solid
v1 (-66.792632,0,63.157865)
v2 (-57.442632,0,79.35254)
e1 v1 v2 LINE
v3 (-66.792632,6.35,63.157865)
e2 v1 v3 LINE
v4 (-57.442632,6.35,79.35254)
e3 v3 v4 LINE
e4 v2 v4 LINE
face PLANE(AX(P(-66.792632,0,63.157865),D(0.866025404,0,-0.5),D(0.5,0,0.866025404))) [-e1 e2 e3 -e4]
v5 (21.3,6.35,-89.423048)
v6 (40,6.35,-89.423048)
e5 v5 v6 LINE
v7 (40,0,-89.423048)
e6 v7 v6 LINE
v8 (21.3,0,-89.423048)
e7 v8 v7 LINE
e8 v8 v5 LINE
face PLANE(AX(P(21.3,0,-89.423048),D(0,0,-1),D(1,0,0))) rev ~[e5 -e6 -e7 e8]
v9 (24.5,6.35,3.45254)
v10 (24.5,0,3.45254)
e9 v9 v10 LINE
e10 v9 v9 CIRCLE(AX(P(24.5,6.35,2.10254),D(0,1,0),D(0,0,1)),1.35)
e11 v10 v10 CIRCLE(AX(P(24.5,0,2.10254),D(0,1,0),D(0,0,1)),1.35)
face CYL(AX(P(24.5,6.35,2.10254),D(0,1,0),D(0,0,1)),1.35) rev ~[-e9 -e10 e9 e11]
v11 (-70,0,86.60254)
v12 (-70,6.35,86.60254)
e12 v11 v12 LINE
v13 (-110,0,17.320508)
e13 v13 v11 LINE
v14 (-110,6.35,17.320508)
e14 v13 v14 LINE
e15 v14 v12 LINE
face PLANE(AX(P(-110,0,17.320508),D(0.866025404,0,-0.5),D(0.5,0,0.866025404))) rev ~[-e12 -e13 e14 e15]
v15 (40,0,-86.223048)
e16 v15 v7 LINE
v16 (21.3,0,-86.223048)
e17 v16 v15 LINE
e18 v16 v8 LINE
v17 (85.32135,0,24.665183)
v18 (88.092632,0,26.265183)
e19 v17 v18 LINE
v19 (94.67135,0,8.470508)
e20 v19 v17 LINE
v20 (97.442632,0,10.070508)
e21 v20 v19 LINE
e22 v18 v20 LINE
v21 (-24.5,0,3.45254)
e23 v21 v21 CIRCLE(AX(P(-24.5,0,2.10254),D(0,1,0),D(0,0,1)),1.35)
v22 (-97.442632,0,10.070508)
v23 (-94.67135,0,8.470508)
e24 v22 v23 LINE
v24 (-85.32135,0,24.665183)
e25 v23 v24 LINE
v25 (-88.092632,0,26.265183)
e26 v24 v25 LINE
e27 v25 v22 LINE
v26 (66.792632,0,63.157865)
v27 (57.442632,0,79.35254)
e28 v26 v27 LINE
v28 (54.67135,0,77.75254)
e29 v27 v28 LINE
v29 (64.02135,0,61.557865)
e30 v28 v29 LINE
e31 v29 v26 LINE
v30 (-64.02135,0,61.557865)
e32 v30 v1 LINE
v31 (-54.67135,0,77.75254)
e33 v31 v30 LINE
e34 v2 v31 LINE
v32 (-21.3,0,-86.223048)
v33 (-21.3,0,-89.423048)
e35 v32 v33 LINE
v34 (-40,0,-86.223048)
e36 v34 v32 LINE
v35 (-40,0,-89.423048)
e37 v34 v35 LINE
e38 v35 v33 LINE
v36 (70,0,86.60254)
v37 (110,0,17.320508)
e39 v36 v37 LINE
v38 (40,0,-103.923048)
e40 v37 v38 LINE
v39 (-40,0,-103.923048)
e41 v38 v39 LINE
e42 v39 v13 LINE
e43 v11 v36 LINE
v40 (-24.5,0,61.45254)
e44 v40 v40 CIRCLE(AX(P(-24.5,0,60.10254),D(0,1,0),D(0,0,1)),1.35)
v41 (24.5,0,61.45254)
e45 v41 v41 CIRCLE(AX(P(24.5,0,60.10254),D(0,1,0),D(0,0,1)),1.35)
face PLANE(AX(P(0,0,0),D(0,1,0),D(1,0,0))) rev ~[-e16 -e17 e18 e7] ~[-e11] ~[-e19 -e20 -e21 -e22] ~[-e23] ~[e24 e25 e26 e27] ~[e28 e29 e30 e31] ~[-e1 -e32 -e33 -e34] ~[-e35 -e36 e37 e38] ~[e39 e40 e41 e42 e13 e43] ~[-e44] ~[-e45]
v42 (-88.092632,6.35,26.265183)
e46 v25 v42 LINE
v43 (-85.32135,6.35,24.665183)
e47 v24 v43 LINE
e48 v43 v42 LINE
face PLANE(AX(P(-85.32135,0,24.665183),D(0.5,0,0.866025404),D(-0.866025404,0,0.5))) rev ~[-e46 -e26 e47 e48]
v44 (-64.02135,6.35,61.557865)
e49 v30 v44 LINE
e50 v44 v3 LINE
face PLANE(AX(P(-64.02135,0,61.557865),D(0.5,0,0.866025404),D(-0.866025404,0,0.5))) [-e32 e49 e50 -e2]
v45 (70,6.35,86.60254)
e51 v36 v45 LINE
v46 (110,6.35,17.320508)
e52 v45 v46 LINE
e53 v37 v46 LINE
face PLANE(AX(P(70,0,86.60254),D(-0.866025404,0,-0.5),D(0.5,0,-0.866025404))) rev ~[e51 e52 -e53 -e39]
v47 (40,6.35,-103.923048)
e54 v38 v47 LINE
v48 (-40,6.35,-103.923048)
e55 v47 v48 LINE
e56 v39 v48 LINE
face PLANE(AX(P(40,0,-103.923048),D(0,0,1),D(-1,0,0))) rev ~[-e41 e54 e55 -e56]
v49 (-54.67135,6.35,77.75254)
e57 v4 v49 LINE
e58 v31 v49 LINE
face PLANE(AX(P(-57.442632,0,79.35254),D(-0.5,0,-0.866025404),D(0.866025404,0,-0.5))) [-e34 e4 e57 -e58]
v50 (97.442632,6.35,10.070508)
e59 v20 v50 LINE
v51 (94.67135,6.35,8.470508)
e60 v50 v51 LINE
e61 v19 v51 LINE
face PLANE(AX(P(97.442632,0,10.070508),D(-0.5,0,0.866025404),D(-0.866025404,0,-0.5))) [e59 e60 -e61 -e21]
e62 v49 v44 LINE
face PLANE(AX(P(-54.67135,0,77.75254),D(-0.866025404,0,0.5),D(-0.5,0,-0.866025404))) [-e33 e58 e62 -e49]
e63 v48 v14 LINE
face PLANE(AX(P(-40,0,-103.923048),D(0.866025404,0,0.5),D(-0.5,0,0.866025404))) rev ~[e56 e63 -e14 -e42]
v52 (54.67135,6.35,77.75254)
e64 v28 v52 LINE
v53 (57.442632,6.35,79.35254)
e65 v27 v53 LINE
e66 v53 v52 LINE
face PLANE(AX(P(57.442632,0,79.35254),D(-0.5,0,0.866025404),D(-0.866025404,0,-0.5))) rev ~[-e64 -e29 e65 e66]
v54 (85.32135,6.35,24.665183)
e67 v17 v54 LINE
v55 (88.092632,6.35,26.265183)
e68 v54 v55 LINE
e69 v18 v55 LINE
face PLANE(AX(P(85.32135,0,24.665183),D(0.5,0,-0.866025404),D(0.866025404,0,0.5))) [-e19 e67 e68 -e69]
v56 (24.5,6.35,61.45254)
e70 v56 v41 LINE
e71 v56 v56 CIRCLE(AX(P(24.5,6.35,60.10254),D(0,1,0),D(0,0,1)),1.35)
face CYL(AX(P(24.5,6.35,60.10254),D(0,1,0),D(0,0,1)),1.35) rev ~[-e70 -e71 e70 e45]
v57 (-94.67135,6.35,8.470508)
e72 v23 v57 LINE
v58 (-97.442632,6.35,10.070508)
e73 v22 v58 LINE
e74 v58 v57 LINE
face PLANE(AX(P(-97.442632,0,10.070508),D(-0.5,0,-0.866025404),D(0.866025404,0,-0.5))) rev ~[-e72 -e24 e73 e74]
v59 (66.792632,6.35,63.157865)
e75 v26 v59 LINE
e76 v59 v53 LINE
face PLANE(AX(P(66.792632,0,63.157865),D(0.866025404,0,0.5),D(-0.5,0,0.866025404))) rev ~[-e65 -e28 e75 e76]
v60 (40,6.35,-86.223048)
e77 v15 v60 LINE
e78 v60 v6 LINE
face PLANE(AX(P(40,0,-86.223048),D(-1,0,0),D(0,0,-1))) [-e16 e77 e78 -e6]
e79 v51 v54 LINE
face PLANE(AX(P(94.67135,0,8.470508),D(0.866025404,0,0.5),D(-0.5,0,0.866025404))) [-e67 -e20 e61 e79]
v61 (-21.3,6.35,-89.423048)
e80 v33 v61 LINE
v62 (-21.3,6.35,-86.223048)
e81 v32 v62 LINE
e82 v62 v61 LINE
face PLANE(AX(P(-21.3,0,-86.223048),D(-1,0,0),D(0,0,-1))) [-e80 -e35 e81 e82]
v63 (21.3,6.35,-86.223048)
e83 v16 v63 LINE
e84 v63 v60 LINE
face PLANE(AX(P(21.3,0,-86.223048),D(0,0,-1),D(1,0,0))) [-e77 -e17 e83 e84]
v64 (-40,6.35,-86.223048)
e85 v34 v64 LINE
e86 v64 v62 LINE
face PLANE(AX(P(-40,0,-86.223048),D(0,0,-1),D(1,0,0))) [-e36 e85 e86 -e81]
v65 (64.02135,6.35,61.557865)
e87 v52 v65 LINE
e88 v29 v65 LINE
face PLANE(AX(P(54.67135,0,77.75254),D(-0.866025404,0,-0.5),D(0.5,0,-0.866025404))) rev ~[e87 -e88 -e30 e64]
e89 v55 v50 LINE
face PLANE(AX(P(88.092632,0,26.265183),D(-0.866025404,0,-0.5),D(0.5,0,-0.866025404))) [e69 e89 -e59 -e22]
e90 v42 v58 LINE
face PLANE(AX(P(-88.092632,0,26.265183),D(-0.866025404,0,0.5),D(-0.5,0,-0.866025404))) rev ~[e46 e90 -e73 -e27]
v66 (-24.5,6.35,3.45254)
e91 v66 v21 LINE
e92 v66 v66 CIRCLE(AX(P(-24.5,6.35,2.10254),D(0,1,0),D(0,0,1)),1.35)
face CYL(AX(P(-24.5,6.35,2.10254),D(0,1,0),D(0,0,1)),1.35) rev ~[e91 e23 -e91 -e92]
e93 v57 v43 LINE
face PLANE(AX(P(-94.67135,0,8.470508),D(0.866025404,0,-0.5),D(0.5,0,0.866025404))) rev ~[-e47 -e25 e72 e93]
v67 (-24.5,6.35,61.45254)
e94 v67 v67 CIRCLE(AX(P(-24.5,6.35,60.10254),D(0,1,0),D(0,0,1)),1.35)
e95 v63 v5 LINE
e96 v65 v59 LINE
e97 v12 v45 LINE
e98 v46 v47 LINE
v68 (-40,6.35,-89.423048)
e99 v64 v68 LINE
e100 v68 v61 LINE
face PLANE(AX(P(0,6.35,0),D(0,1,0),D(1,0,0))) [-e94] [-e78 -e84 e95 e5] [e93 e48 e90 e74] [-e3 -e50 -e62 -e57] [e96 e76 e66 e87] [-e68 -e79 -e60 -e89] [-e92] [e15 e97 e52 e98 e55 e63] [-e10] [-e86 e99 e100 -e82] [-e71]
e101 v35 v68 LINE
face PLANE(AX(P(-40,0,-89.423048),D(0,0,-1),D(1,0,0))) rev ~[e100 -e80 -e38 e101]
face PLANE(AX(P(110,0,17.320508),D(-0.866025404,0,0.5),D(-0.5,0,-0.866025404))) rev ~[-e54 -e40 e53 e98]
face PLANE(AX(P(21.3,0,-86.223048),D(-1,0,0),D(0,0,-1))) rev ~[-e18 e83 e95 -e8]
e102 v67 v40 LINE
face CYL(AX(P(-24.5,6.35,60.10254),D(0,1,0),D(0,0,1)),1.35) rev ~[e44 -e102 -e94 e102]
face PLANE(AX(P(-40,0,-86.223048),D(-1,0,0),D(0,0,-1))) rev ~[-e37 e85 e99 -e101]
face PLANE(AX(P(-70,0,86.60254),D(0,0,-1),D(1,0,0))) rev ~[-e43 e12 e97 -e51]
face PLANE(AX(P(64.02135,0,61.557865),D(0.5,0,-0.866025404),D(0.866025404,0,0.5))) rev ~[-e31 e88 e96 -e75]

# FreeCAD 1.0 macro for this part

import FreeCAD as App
import Part
import Sketcher
from FreeCAD import Vector
Q = App.Units.Quantity


def add_polygon(sketch, points):
    """Adds a closed chain of lines whose ends are joined by coincident constraints."""
    first, n = sketch.GeometryCount, len(points)
    for a, b in zip(points, points[1:] + points[:1]):
        sketch.addGeometry(Part.LineSegment(App.Vector(*a, 0), App.Vector(*b, 0)), False)
    for i in range(n):
        sketch.addConstraint(Sketcher.Constraint("Coincident", first + i, 2, first + (i + 1) % n, 1))

doc = App.newDocument("Part")
body = doc.addObject("PartDesign::Body", "Body")

sketch1 = body.newObject("Sketcher::SketchObject", "Sketch")
sketch1.AttachmentSupport = (doc.getObject("XZ_Plane"), [""])
sketch1.MapMode = "FlatFace"
add_polygon(sketch1, [(70, 86.60254), (110, 17.320508), (40, -103.923048), (-40, -103.923048), (-110, 17.320508), (-70, 86.60254)])
add_polygon(sketch1, [(-54.67135, 77.75254), (-57.442632, 79.35254), (-66.792632, 63.157865), (-64.02135, 61.557865)])
add_polygon(sketch1, [(-97.442632, 10.070508), (-94.67135, 8.470508), (-85.32135, 24.665183), (-88.092632, 26.265183)])
add_polygon(sketch1, [(57.442632, 79.35254), (54.67135, 77.75254), (64.02135, 61.557865), (66.792632, 63.157865)])
add_polygon(sketch1, [(94.67135, 8.470508), (97.442632, 10.070508), (88.092632, 26.265183), (85.32135, 24.665183)])
add_polygon(sketch1, [(-21.3, -86.223048), (-40, -86.223048), (-40, -89.423048), (-21.3, -89.423048)])
add_polygon(sketch1, [(40, -86.223048), (21.3, -86.223048), (21.3, -89.423048), (40, -89.423048)])
sketch1.addConstraint(Sketcher.Constraint("Horizontal", 2))
sketch1.addConstraint(Sketcher.Constraint("Horizontal", 5))
sketch1.addConstraint(Sketcher.Constraint("Horizontal", 22))
sketch1.addConstraint(Sketcher.Constraint("Vertical", 23))
sketch1.addConstraint(Sketcher.Constraint("Horizontal", 24))
sketch1.addConstraint(Sketcher.Constraint("Vertical", 25))
sketch1.addConstraint(Sketcher.Constraint("Horizontal", 26))
sketch1.addConstraint(Sketcher.Constraint("Vertical", 27))
sketch1.addConstraint(Sketcher.Constraint("Horizontal", 28))
sketch1.addConstraint(Sketcher.Constraint("Vertical", 29))
sketch1.addConstraint(Sketcher.Constraint("Symmetric", 0, 2, 3, 2, -2))
sketch1.addConstraint(Sketcher.Constraint("Symmetric", 9, 2, 14, 2, -2))
sketch1.addConstraint(Sketcher.Constraint("Symmetric", 8, 2, 15, 2, -2))
sketch1.addConstraint(Sketcher.Constraint("Symmetric", 7, 2, 16, 2, -2))
sketch1.addConstraint(Sketcher.Constraint("Symmetric", 6, 2, 17, 2, -2))
sketch1.addConstraint(Sketcher.Constraint("Symmetric", 13, 2, 18, 2, -2))
sketch1.addConstraint(Sketcher.Constraint("Symmetric", 12, 2, 19, 2, -2))
sketch1.addConstraint(Sketcher.Constraint("Symmetric", 11, 2, 20, 2, -2))
sketch1.addConstraint(Sketcher.Constraint("Symmetric", 10, 2, 21, 2, -2))
sketch1.addConstraint(Sketcher.Constraint("Symmetric", 25, 2, 26, 2, -2))
sketch1.addConstraint(Sketcher.Constraint("Symmetric", 23, 2, 28, 2, -2))
sketch1.addConstraint(Sketcher.Constraint("Parallel", 0, 3))
sketch1.addConstraint(Sketcher.Constraint("Parallel", 1, 4))
sketch1.addConstraint(Sketcher.Constraint("Perpendicular", 4, 6))
sketch1.addConstraint(Sketcher.Constraint("Perpendicular", 6, 7))
sketch1.addConstraint(Sketcher.Constraint("Perpendicular", 7, 8))
sketch1.addConstraint(Sketcher.Constraint("Perpendicular", 8, 9))
sketch1.addConstraint(Sketcher.Constraint("Perpendicular", 9, 10))
sketch1.addConstraint(Sketcher.Constraint("Perpendicular", 10, 11))
sketch1.addConstraint(Sketcher.Constraint("Perpendicular", 11, 12))
sketch1.addConstraint(Sketcher.Constraint("Perpendicular", 12, 13))
sketch1.addConstraint(Sketcher.Constraint("Perpendicular", 3, 14))
sketch1.addConstraint(Sketcher.Constraint("Vertical", 2, 2, 22, 2))
sketch1.addConstraint(Sketcher.Constraint("Equal", 8, 10))
sketch1.addConstraint(Sketcher.Constraint("Equal", 9, 11))
sketch1.addConstraint(Sketcher.Constraint("DistanceX", 2, 2, 2, 1, 80.0))
sketch1.addConstraint(Sketcher.Constraint("DistanceX", 5, 1, 5, 2, 140.0))
sketch1.addConstraint(Sketcher.Constraint("Angle", 0, Q("-60 deg")))
sketch1.addConstraint(Sketcher.Constraint("Distance", 0, 80.0))
sketch1.addConstraint(Sketcher.Constraint("DistanceX", 22, 2, 22, 1, 18.7))
sketch1.addConstraint(Sketcher.Constraint("DistanceY", 23, 2, 23, 1, 3.2))
sketch1.addConstraint(Sketcher.Constraint("DistanceX", 10, 2, 9, 2, 40.0))
sketch1.addConstraint(Sketcher.Constraint("Distance", 6, 3.2))
sketch1.addConstraint(Sketcher.Constraint("Distance", 7, 18.7))
sketch1.addConstraint(Sketcher.Constraint("DistanceY", 2, 2, 22, 2, 17.7))
sketch1.addConstraint(Sketcher.Constraint("DistanceY", 6, 2, 4, 2, 7.25))
sketch1.addConstraint(Sketcher.Constraint("DistanceY", 10, 2, 3, 2, 8.85))
sketch1.addConstraint(Sketcher.Constraint("DistanceX", 9, 2, 14, 2, 109.342701))
sketch1.addConstraint(Sketcher.Constraint("DistanceY", -1, 1, 0, 2, 17.320508))
pad1 = body.newObject("PartDesign::Pad", "Pad")
pad1.Profile = sketch1
pad1.Length = 6.35
pad1.Reversed = True

sketch2 = body.newObject("Sketcher::SketchObject", "Sketch001")
sketch2.AttachmentSupport = (doc.getObject("XZ_Plane"), [""])
sketch2.MapMode = "FlatFace"
sketch2.AttachmentOffset = App.Placement(Vector(0, 0, -6.35), App.Rotation())
sketch2.addGeometry(Part.Circle(Vector(-24.5, 60.10254, 0), Vector(0, 0, 1), 1.35), False)
sketch2.addGeometry(Part.Circle(Vector(24.5, 60.10254, 0), Vector(0, 0, 1), 1.35), False)
sketch2.addGeometry(Part.Circle(Vector(24.5, 2.10254, 0), Vector(0, 0, 1), 1.35), False)
sketch2.addGeometry(Part.Circle(Vector(-24.5, 2.10254, 0), Vector(0, 0, 1), 1.35), False)
sketch2.addConstraint(Sketcher.Constraint("Equal", 0, 1))
sketch2.addConstraint(Sketcher.Constraint("Equal", 1, 2))
sketch2.addConstraint(Sketcher.Constraint("Equal", 2, 3))
sketch2.addConstraint(Sketcher.Constraint("Symmetric", 0, 3, 1, 3, -2))
sketch2.addConstraint(Sketcher.Constraint("Symmetric", 2, 3, 3, 3, -2))
sketch2.addConstraint(Sketcher.Constraint("Vertical", 1, 3, 2, 3))
sketch2.addConstraint(Sketcher.Constraint("Diameter", 0, 2.7))
sketch2.addConstraint(Sketcher.Constraint("DistanceX", 0, 3, 1, 3, 49.0))
sketch2.addConstraint(Sketcher.Constraint("DistanceY", 2, 3, 1, 3, 58.0))
sketch2.addConstraint(Sketcher.Constraint("DistanceY", -1, 1, 0, 3, 60.10254))
pocket1 = body.newObject("PartDesign::Pocket", "Pocket")
pocket1.Profile = sketch2
pocket1.Length = 6.35
pocket1.Reversed = True

doc.recompute()
